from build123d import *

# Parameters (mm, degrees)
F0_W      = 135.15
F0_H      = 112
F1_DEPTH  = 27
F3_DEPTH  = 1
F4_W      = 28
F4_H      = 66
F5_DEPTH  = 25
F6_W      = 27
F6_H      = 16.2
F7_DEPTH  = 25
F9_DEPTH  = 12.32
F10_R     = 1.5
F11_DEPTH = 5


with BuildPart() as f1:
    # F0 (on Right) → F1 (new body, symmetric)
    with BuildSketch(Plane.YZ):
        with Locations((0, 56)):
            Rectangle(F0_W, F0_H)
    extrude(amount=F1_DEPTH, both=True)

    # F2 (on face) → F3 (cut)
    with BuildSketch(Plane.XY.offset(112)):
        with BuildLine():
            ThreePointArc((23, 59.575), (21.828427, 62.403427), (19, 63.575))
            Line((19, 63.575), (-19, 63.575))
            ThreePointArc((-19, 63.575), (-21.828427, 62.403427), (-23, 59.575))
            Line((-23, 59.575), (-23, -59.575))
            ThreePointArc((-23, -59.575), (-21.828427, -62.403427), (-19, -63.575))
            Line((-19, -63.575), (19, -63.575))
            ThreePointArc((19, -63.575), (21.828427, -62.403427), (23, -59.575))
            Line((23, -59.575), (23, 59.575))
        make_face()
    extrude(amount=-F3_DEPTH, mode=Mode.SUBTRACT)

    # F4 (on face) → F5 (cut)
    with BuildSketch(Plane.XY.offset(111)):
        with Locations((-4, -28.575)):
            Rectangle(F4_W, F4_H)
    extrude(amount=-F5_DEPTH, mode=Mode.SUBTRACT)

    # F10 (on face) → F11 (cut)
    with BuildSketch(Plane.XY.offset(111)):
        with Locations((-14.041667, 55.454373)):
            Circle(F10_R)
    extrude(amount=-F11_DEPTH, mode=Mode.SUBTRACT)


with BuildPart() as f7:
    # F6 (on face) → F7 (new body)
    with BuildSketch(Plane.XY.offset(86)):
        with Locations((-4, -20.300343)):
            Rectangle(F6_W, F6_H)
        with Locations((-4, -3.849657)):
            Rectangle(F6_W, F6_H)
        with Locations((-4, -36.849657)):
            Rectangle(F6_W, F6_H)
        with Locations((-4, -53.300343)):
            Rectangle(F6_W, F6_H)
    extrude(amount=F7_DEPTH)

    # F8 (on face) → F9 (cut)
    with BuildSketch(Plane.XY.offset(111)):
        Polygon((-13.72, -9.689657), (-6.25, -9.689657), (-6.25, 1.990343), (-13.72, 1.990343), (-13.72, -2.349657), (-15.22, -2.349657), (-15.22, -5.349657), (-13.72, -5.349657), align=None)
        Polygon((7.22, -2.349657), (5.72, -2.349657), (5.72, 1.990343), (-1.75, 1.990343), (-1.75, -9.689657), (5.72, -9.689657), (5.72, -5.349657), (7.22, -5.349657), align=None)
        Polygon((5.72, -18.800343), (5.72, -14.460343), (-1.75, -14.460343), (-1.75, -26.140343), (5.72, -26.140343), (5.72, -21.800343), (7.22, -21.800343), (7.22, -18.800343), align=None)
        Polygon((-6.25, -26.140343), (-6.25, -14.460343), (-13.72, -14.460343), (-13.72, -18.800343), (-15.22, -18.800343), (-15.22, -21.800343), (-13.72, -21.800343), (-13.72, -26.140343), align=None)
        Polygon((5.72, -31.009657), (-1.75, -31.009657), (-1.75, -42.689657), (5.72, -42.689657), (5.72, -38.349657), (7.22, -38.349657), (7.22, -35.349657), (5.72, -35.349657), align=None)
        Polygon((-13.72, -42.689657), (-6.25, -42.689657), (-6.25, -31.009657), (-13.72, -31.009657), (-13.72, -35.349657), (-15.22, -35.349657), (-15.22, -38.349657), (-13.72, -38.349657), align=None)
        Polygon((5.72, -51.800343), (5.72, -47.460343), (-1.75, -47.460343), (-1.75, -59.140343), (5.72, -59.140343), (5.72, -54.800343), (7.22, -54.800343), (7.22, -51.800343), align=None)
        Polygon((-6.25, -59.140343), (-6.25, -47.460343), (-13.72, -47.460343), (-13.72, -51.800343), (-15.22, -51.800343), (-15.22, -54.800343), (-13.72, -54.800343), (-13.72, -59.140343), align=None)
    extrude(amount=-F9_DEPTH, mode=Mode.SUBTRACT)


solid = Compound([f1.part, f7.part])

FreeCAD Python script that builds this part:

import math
import FreeCAD as App
import Part
import Sketcher
Q = App.Units.Quantity

doc = App.newDocument("Part")
body = doc.addObject("PartDesign::Body", "Body")

sketch1 = doc.addObject("Sketcher::SketchObject", "Sketch")
body.addObject(sketch1)
sketch1.AttachmentSupport = (doc.YZ_Plane, [""])
sketch1.MapMode = "FlatFace"
sketch1.addGeometry([
    Part.LineSegment(App.Vector(-68, 112, 0), App.Vector(-68, 0, 0)),
    Part.LineSegment(App.Vector(-68, 0, 0), App.Vector(68, 0, 0)),
    Part.LineSegment(App.Vector(68, 0, 0), App.Vector(68, 112, 0)),
    Part.LineSegment(App.Vector(68, 112, 0), App.Vector(-68, 112, 0)),
], False)
sketch1.addConstraint([
    Sketcher.Constraint("Coincident", 0, 2, 1, 1),
    Sketcher.Constraint("Coincident", 1, 2, 2, 1),
    Sketcher.Constraint("Coincident", 2, 2, 3, 1),
    Sketcher.Constraint("Coincident", 3, 2, 0, 1),
    Sketcher.Constraint("Vertical", 0),
    Sketcher.Constraint("Horizontal", 1),
    Sketcher.Constraint("Vertical", 2),
    Sketcher.Constraint("Horizontal", 3),
    Sketcher.Constraint("Symmetric", 0, 2, 1, 2, -1, 1),
    Sketcher.Constraint("DistanceY", 0, 2, 0, 1, Q("112 mm")),
    Sketcher.Constraint("DistanceX", 1, 1, 1, 2, Q("135.15 mm")),
])
pad1 = doc.addObject("PartDesign::Pad", "Pad")
body.addObject(pad1)
pad1.Profile = sketch1
pad1.Length = 54
pad1.Midplane = True

sketch2 = doc.addObject("Sketcher::SketchObject", "Sketch001")
body.addObject(sketch2)
sketch2.AttachmentSupport = (doc.XY_Plane, [""])
sketch2.MapMode = "FlatFace"
sketch2.AttachmentOffset = App.Placement(App.Vector(0, 0, 112), App.Rotation())
sketch2.addGeometry([
    Part.ArcOfCircle(Part.Circle(App.Vector(19, 59.6, 0), App.Vector(0, 0, 1), 4), math.radians(0), math.radians(90)),
    Part.LineSegment(App.Vector(19, 63.6, 0), App.Vector(-19, 63.6, 0)),
    Part.ArcOfCircle(Part.Circle(App.Vector(-19, 59.6, 0), App.Vector(0, 0, 1), 4), math.radians(90), math.radians(180)),
    Part.LineSegment(App.Vector(-23, 59.6, 0), App.Vector(-23, -59.6, 0)),
    Part.ArcOfCircle(Part.Circle(App.Vector(-19, -59.6, 0), App.Vector(0, 0, 1), 4), math.radians(-180), math.radians(-90)),
    Part.LineSegment(App.Vector(-19, -63.6, 0), App.Vector(19, -63.6, 0)),
    Part.ArcOfCircle(Part.Circle(App.Vector(19, -59.6, 0), App.Vector(0, 0, 1), 4), math.radians(-90), math.radians(0)),
    Part.LineSegment(App.Vector(23, -59.6, 0), App.Vector(23, 59.6, 0)),
], False)
sketch2.addConstraint([
    Sketcher.Constraint("Tangent", 0, 2, 1, 1),
    Sketcher.Constraint("Tangent", 1, 2, 2, 1),
    Sketcher.Constraint("Tangent", 2, 2, 3, 1),
    Sketcher.Constraint("Tangent", 3, 2, 4, 1),
    Sketcher.Constraint("Tangent", 4, 2, 5, 1),
    Sketcher.Constraint("Tangent", 5, 2, 6, 1),
    Sketcher.Constraint("Tangent", 6, 2, 7, 1),
    Sketcher.Constraint("Tangent", 7, 2, 0, 1),
    Sketcher.Constraint("Horizontal", 1),
    Sketcher.Constraint("Vertical", 3),
    Sketcher.Constraint("Horizontal", 5),
    Sketcher.Constraint("Vertical", 7),
    Sketcher.Constraint("Equal", 0, 2),
    Sketcher.Constraint("Equal", 2, 4),
    Sketcher.Constraint("Equal", 4, 6),
    Sketcher.Constraint("Symmetric", 0, 3, 4, 3, -1, 1),
    Sketcher.Constraint("Radius", 0, Q("4 mm")),
    Sketcher.Constraint("DistanceX", 1, 2, 1, 1, Q("38 mm")),
    Sketcher.Constraint("DistanceY", 3, 2, 3, 1, Q("119.15 mm")),
])
pocket1 = doc.addObject("PartDesign::Pocket", "Pocket")
body.addObject(pocket1)
pocket1.Profile = sketch2
pocket1.Length = 1

sketch3 = doc.addObject("Sketcher::SketchObject", "Sketch002")
body.addObject(sketch3)
sketch3.AttachmentSupport = (doc.XY_Plane, [""])
sketch3.MapMode = "FlatFace"
sketch3.AttachmentOffset = App.Placement(App.Vector(0, 0, 111), App.Rotation())
sketch3.addGeometry([
    Part.LineSegment(App.Vector(-18, 4, 0), App.Vector(-18, -62, 0)),
    Part.LineSegment(App.Vector(-18, -62, 0), App.Vector(10, -62, 0)),
    Part.LineSegment(App.Vector(10, -62, 0), App.Vector(10, 4, 0)),
    Part.LineSegment(App.Vector(10, 4, 0), App.Vector(-18, 4, 0)),
], False)
sketch3.addConstraint([
    Sketcher.Constraint("Coincident", 0, 2, 1, 1),
    Sketcher.Constraint("Coincident", 1, 2, 2, 1),
    Sketcher.Constraint("Coincident", 2, 2, 3, 1),
    Sketcher.Constraint("Coincident", 3, 2, 0, 1),
    Sketcher.Constraint("Vertical", 0),
    Sketcher.Constraint("Horizontal", 1),
    Sketcher.Constraint("Vertical", 2),
    Sketcher.Constraint("Horizontal", 3),
    Sketcher.Constraint("DistanceX", 1, 1, 1, 2, Q("28 mm")),
    Sketcher.Constraint("DistanceY", 0, 2, 0, 1, Q("66 mm")),
    Sketcher.Constraint("DistanceX", 0, 2, -1, 1, Q("18 mm")),
    Sketcher.Constraint("DistanceY", 0, 2, -1, 1, Q("61.575 mm")),
])
pocket2 = doc.addObject("PartDesign::Pocket", "Pocket001")
body.addObject(pocket2)
pocket2.Profile = sketch3
pocket2.Length = 25

sketch4 = doc.addObject("Sketcher::SketchObject", "Sketch003")
body.addObject(sketch4)
sketch4.AttachmentSupport = (doc.XY_Plane, [""])
sketch4.MapMode = "FlatFace"
sketch4.AttachmentOffset = App.Placement(App.Vector(0, 0, 111), App.Rotation())
sketch4.addGeometry(Part.Circle(App.Vector(-14, 55.5, 0), App.Vector(0, 0, 1), 1.5), False)
sketch4.addConstraint([
    Sketcher.Constraint("Diameter", 0, Q("3 mm")),
    Sketcher.Constraint("DistanceX", 0, 3, -1, 1, Q("14.041667 mm")),
    Sketcher.Constraint("DistanceY", -1, 1, 0, 3, Q("55.454373 mm")),
])
pocket3 = doc.addObject("PartDesign::Pocket", "Pocket002")
body.addObject(pocket3)
pocket3.Profile = sketch4
pocket3.Length = 5
body2 = doc.addObject("PartDesign::Body", "Body001")
body2.AllowCompound = True

sketch5 = doc.addObject("Sketcher::SketchObject", "Sketch004")
body2.addObject(sketch5)
sketch5.AttachmentSupport = (doc.getObject("XY_Plane001"), [""])
sketch5.MapMode = "FlatFace"
sketch5.AttachmentOffset = App.Placement(App.Vector(0, 0, 86), App.Rotation())
sketch5.addGeometry([
    Part.LineSegment(App.Vector(-18, -12, 0), App.Vector(-18, -28, 0)),
    Part.LineSegment(App.Vector(-18, -28, 0), App.Vector(10, -28, 0)),
    Part.LineSegment(App.Vector(10, -28, 0), App.Vector(10, -12, 0)),
    Part.LineSegment(App.Vector(10, -12, 0), App.Vector(-18, -12, 0)),
    Part.LineSegment(App.Vector(-18, 4, 0), App.Vector(-18, -12, 0)),
    Part.LineSegment(App.Vector(-18, -12, 0), App.Vector(10, -12, 0)),
    Part.LineSegment(App.Vector(10, -12, 0), App.Vector(10, 4, 0)),
    Part.LineSegment(App.Vector(10, 4, 0), App.Vector(-18, 4, 0)),
    Part.LineSegment(App.Vector(-18, -29, 0), App.Vector(-18, -45, 0)),
    Part.LineSegment(App.Vector(-18, -45, 0), App.Vector(10, -45, 0)),
    Part.LineSegment(App.Vector(10, -45, 0), App.Vector(10, -29, 0)),
    Part.LineSegment(App.Vector(10, -29, 0), App.Vector(-18, -29, 0)),
    Part.LineSegment(App.Vector(-18, -45, 0), App.Vector(-18, -61, 0)),
    Part.LineSegment(App.Vector(-18, -61, 0), App.Vector(10, -61, 0)),
    Part.LineSegment(App.Vector(10, -61, 0), App.Vector(10, -45, 0)),
    Part.LineSegment(App.Vector(10, -45, 0), App.Vector(-18, -45, 0)),
], False)
sketch5.addConstraint([
    Sketcher.Constraint("Coincident", 0, 2, 1, 1),
    Sketcher.Constraint("Coincident", 1, 2, 2, 1),
    Sketcher.Constraint("Coincident", 2, 2, 3, 1),
    Sketcher.Constraint("Coincident", 3, 2, 0, 1),
    Sketcher.Constraint("Coincident", 4, 2, 5, 1),
    Sketcher.Constraint("Coincident", 5, 2, 6, 1),
    Sketcher.Constraint("Coincident", 6, 2, 7, 1),
    Sketcher.Constraint("Coincident", 7, 2, 4, 1),
    Sketcher.Constraint("Coincident", 8, 2, 9, 1),
    Sketcher.Constraint("Coincident", 9, 2, 10, 1),
    Sketcher.Constraint("Coincident", 10, 2, 11, 1),
    Sketcher.Constraint("Coincident", 11, 2, 8, 1),
    Sketcher.Constraint("Coincident", 12, 2, 13, 1),
    Sketcher.Constraint("Coincident", 13, 2, 14, 1),
    Sketcher.Constraint("Coincident", 14, 2, 15, 1),
    Sketcher.Constraint("Coincident", 15, 2, 12, 1),
    Sketcher.Constraint("Vertical", 0),
    Sketcher.Constraint("Horizontal", 1),
    Sketcher.Constraint("Vertical", 2),
    Sketcher.Constraint("Horizontal", 3),
    Sketcher.Constraint("Vertical", 4),
    Sketcher.Constraint("Horizontal", 5),
    Sketcher.Constraint("Vertical", 6),
    Sketcher.Constraint("Horizontal", 7),
    Sketcher.Constraint("Vertical", 8),
    Sketcher.Constraint("Horizontal", 9),
    Sketcher.Constraint("Vertical", 10),
    Sketcher.Constraint("Horizontal", 11),
    Sketcher.Constraint("Vertical", 12),
    Sketcher.Constraint("Horizontal", 13),
    Sketcher.Constraint("Vertical", 14),
    Sketcher.Constraint("Horizontal", 15),
    Sketcher.Constraint("Vertical", 3, 2, 4, 2),
    Sketcher.Constraint("Vertical", 2, 2, 5, 2),
    Sketcher.Constraint("Vertical", 7, 2, 8, 2),
    Sketcher.Constraint("Vertical", 6, 2, 9, 2),
    Sketcher.Constraint("Vertical", 11, 2, 12, 2),
    Sketcher.Constraint("Vertical", 10, 2, 13, 2),
    Sketcher.Constraint("Equal", 2, 4),
    Sketcher.Constraint("Equal", 6, 8),
    Sketcher.Constraint("Equal", 10, 12),
    Sketcher.Constraint("DistanceX", 1, 1, 1, 2, Q("27 mm")),
    Sketcher.Constraint("DistanceY", 0, 2, 0, 1, Q("16.2 mm")),
    Sketcher.Constraint("DistanceY", 8, 2, 4, 2, Q("33 mm")),
    Sketcher.Constraint("DistanceY", 12, 2, 0, 2, Q("33 mm")),
    Sketcher.Constraint("DistanceX", 0, 2, -1, 1, Q("17.5 mm")),
    Sketcher.Constraint("DistanceY", 0, 2, -1, 1, Q("28.400343 mm")),
    Sketcher.Constraint("DistanceY", 4, 2, -1, 1, Q("11.949657 mm")),
])
pad2 = doc.addObject("PartDesign::Pad", "Pad001")
body2.addObject(pad2)
pad2.Profile = sketch5
pad2.Length = 25

sketch6 = doc.addObject("Sketcher::SketchObject", "Sketch005")
body2.addObject(sketch6)
sketch6.AttachmentSupport = (doc.getObject("XY_Plane001"), [""])
sketch6.MapMode = "FlatFace"
sketch6.AttachmentOffset = App.Placement(App.Vector(0, 0, 111), App.Rotation())
sketch6.addGeometry([
    Part.LineSegment(App.Vector(-13.7, -9.7, 0), App.Vector(-6.2, -9.7, 0)),
    Part.LineSegment(App.Vector(-6.2, -9.7, 0), App.Vector(-6.2, 2, 0)),
    Part.LineSegment(App.Vector(-6.2, 2, 0), App.Vector(-13.7, 2, 0)),
    Part.LineSegment(App.Vector(-13.7, 2, 0), App.Vector(-13.7, -2.3, 0)),
    Part.LineSegment(App.Vector(-13.7, -2.3, 0), App.Vector(-15.2, -2.3, 0)),
    Part.LineSegment(App.Vector(-15.2, -2.3, 0), App.Vector(-15.2, -5.3, 0)),
    Part.LineSegment(App.Vector(-15.2, -5.3, 0), App.Vector(-13.7, -5.3, 0)),
    Part.LineSegment(App.Vector(-13.7, -5.3, 0), App.Vector(-13.7, -9.7, 0)),
    Part.LineSegment(App.Vector(7.2, -2.3, 0), App.Vector(5.7, -2.3, 0)),
    Part.LineSegment(App.Vector(5.7, -2.3, 0), App.Vector(5.7, 2, 0)),
    Part.LineSegment(App.Vector(5.7, 2, 0), App.Vector(-1.8, 2, 0)),
    Part.LineSegment(App.Vector(-1.8, 2, 0), App.Vector(-1.8, -9.7, 0)),
    Part.LineSegment(App.Vector(-1.8, -9.7, 0), App.Vector(5.7, -9.7, 0)),
    Part.LineSegment(App.Vector(5.7, -9.7, 0), App.Vector(5.7, -5.3, 0)),
    Part.LineSegment(App.Vector(5.7, -5.3, 0), App.Vector(7.2, -5.3, 0)),
    Part.LineSegment(App.Vector(7.2, -5.3, 0), App.Vector(7.2, -2.3, 0)),
    Part.LineSegment(App.Vector(5.7, -18.8, 0), App.Vector(5.7, -14.5, 0)),
    Part.LineSegment(App.Vector(5.7, -14.5, 0), App.Vector(-1.8, -14.5, 0)),
    Part.LineSegment(App.Vector(-1.8, -14.5, 0), App.Vector(-1.8, -26.1, 0)),
    Part.LineSegment(App.Vector(-1.8, -26.1, 0), App.Vector(5.7, -26.1, 0)),
    Part.LineSegment(App.Vector(5.7, -26.1, 0), App.Vector(5.7, -21.8, 0)),
    Part.LineSegment(App.Vector(5.7, -21.8, 0), App.Vector(7.2, -21.8, 0)),
    Part.LineSegment(App.Vector(7.2, -21.8, 0), App.Vector(7.2, -18.8, 0)),
    Part.LineSegment(App.Vector(7.2, -18.8, 0), App.Vector(5.7, -18.8, 0)),
    Part.LineSegment(App.Vector(-6.2, -26.1, 0), App.Vector(-6.2, -14.5, 0)),
    Part.LineSegment(App.Vector(-6.2, -14.5, 0), App.Vector(-13.7, -14.5, 0)),
    Part.LineSegment(App.Vector(-13.7, -14.5, 0), App.Vector(-13.7, -18.8, 0)),
    Part.LineSegment(App.Vector(-13.7, -18.8, 0), App.Vector(-15.2, -18.8, 0)),
    Part.LineSegment(App.Vector(-15.2, -18.8, 0), App.Vector(-15.2, -21.8, 0)),
    Part.LineSegment(App.Vector(-15.2, -21.8, 0), App.Vector(-13.7, -21.8, 0)),
    Part.LineSegment(App.Vector(-13.7, -21.8, 0), App.Vector(-13.7, -26.1, 0)),
    Part.LineSegment(App.Vector(-13.7, -26.1, 0), App.Vector(-6.2, -26.1, 0)),
    Part.LineSegment(App.Vector(5.7, -31, 0), App.Vector(-1.8, -31, 0)),
    Part.LineSegment(App.Vector(-1.8, -31, 0), App.Vector(-1.8, -42.7, 0)),
    Part.LineSegment(App.Vector(-1.8, -42.7, 0), App.Vector(5.7, -42.7, 0)),
    Part.LineSegment(App.Vector(5.7, -42.7, 0), App.Vector(5.7, -38.3, 0)),
    Part.LineSegment(App.Vector(5.7, -38.3, 0), App.Vector(7.2, -38.3, 0)),
    Part.LineSegment(App.Vector(7.2, -38.3, 0), App.Vector(7.2, -35.3, 0)),
    Part.LineSegment(App.Vector(7.2, -35.3, 0), App.Vector(5.7, -35.3, 0)),
    Part.LineSegment(App.Vector(5.7, -35.3, 0), App.Vector(5.7, -31, 0)),
    Part.LineSegment(App.Vector(-13.7, -42.7, 0), App.Vector(-6.2, -42.7, 0)),
    Part.LineSegment(App.Vector(-6.2, -42.7, 0), App.Vector(-6.2, -31, 0)),
    Part.LineSegment(App.Vector(-6.2, -31, 0), App.Vector(-13.7, -31, 0)),
    Part.LineSegment(App.Vector(-13.7, -31, 0), App.Vector(-13.7, -35.3, 0)),
    Part.LineSegment(App.Vector(-13.7, -35.3, 0), App.Vector(-15.2, -35.3, 0)),
    Part.LineSegment(App.Vector(-15.2, -35.3, 0), App.Vector(-15.2, -38.3, 0)),
    Part.LineSegment(App.Vector(-15.2, -38.3, 0), App.Vector(-13.7, -38.3, 0)),
    Part.LineSegment(App.Vector(-13.7, -38.3, 0), App.Vector(-13.7, -42.7, 0)),
    Part.LineSegment(App.Vector(5.7, -51.8, 0), App.Vector(5.7, -47.5, 0)),
    Part.LineSegment(App.Vector(5.7, -47.5, 0), App.Vector(-1.8, -47.5, 0)),
    Part.LineSegment(App.Vector(-1.8, -47.5, 0), App.Vector(-1.8, -59.1, 0)),
    Part.LineSegment(App.Vector(-1.8, -59.1, 0), App.Vector(5.7, -59.1, 0)),
    Part.LineSegment(App.Vector(5.7, -59.1, 0), App.Vector(5.7, -54.8, 0)),
    Part.LineSegment(App.Vector(5.7, -54.8, 0), App.Vector(7.2, -54.8, 0)),
    Part.LineSegment(App.Vector(7.2, -54.8, 0), App.Vector(7.2, -51.8, 0)),
    Part.LineSegment(App.Vector(7.2, -51.8, 0), App.Vector(5.7, -51.8, 0)),
    Part.LineSegment(App.Vector(-6.2, -59.1, 0), App.Vector(-6.2, -47.5, 0)),
    Part.LineSegment(App.Vector(-6.2, -47.5, 0), App.Vector(-13.7, -47.5, 0)),
    Part.LineSegment(App.Vector(-13.7, -47.5, 0), App.Vector(-13.7, -51.8, 0)),
    Part.LineSegment(App.Vector(-13.7, -51.8, 0), App.Vector(-15.2, -51.8, 0)),
    Part.LineSegment(App.Vector(-15.2, -51.8, 0), App.Vector(-15.2, -54.8, 0)),
    Part.LineSegment(App.Vector(-15.2, -54.8, 0), App.Vector(-13.7, -54.8, 0)),
    Part.LineSegment(App.Vector(-13.7, -54.8, 0), App.Vector(-13.7, -59.1, 0)),
    Part.LineSegment(App.Vector(-13.7, -59.1, 0), App.Vector(-6.2, -59.1, 0)),
], False)
sketch6.addConstraint([
    Sketcher.Constraint("Coincident", 0, 2, 1, 1),
    Sketcher.Constraint("Coincident", 1, 2, 2, 1),
    Sketcher.Constraint("Coincident", 2, 2, 3, 1),
    Sketcher.Constraint("Coincident", 3, 2, 4, 1),
    Sketcher.Constraint("Coincident", 4, 2, 5, 1),
    Sketcher.Constraint("Coincident", 5, 2, 6, 1),
    Sketcher.Constraint("Coincident", 6, 2, 7, 1),
    Sketcher.Constraint("Coincident", 7, 2, 0, 1),
    Sketcher.Constraint("Coincident", 8, 2, 9, 1),
    Sketcher.Constraint("Coincident", 9, 2, 10, 1),
    Sketcher.Constraint("Coincident", 10, 2, 11, 1),
    Sketcher.Constraint("Coincident", 11, 2, 12, 1),
    Sketcher.Constraint("Coincident", 12, 2, 13, 1),
    Sketcher.Constraint("Coincident", 13, 2, 14, 1),
    Sketcher.Constraint("Coincident", 14, 2, 15, 1),
    Sketcher.Constraint("Coincident", 15, 2, 8, 1),
    Sketcher.Constraint("Coincident", 16, 2, 17, 1),
    Sketcher.Constraint("Coincident", 17, 2, 18, 1),
    Sketcher.Constraint("Coincident", 18, 2, 19, 1),
    Sketcher.Constraint("Coincident", 19, 2, 20, 1),
    Sketcher.Constraint("Coincident", 20, 2, 21, 1),
    Sketcher.Constraint("Coincident", 21, 2, 22, 1),
    Sketcher.Constraint("Coincident", 22, 2, 23, 1),
    Sketcher.Constraint("Coincident", 23, 2, 16, 1),
    Sketcher.Constraint("Coincident", 24, 2, 25, 1),
    Sketcher.Constraint("Coincident", 25, 2, 26, 1),
    Sketcher.Constraint("Coincident", 26, 2, 27, 1),
    Sketcher.Constraint("Coincident", 27, 2, 28, 1),
    Sketcher.Constraint("Coincident", 28, 2, 29, 1),
    Sketcher.Constraint("Coincident", 29, 2, 30, 1),
    Sketcher.Constraint("Coincident", 30, 2, 31, 1),
    Sketcher.Constraint("Coincident", 31, 2, 24, 1),
    Sketcher.Constraint("Coincident", 32, 2, 33, 1),
    Sketcher.Constraint("Coincident", 33, 2, 34, 1),
    Sketcher.Constraint("Coincident", 34, 2, 35, 1),
    Sketcher.Constraint("Coincident", 35, 2, 36, 1),
    Sketcher.Constraint("Coincident", 36, 2, 37, 1),
    Sketcher.Constraint("Coincident", 37, 2, 38, 1),
    Sketcher.Constraint("Coincident", 38, 2, 39, 1),
    Sketcher.Constraint("Coincident", 39, 2, 32, 1),
    Sketcher.Constraint("Coincident", 40, 2, 41, 1),
    Sketcher.Constraint("Coincident", 41, 2, 42, 1),
    Sketcher.Constraint("Coincident", 42, 2, 43, 1),
    Sketcher.Constraint("Coincident", 43, 2, 44, 1),
    Sketcher.Constraint("Coincident", 44, 2, 45, 1),
    Sketcher.Constraint("Coincident", 45, 2, 46, 1),
    Sketcher.Constraint("Coincident", 46, 2, 47, 1),
    Sketcher.Constraint("Coincident", 47, 2, 40, 1),
    Sketcher.Constraint("Coincident", 48, 2, 49, 1),
    Sketcher.Constraint("Coincident", 49, 2, 50, 1),
    Sketcher.Constraint("Coincident", 50, 2, 51, 1),
    Sketcher.Constraint("Coincident", 51, 2, 52, 1),
    Sketcher.Constraint("Coincident", 52, 2, 53, 1),
    Sketcher.Constraint("Coincident", 53, 2, 54, 1),
    Sketcher.Constraint("Coincident", 54, 2, 55, 1),
    Sketcher.Constraint("Coincident", 55, 2, 48, 1),
    Sketcher.Constraint("Coincident", 56, 2, 57, 1),
    Sketcher.Constraint("Coincident", 57, 2, 58, 1),
    Sketcher.Constraint("Coincident", 58, 2, 59, 1),
    Sketcher.Constraint("Coincident", 59, 2, 60, 1),
    Sketcher.Constraint("Coincident", 60, 2, 61, 1),
    Sketcher.Constraint("Coincident", 61, 2, 62, 1),
    Sketcher.Constraint("Coincident", 62, 2, 63, 1),
    Sketcher.Constraint("Coincident", 63, 2, 56, 1),
    Sketcher.Constraint("Horizontal", 0),
    Sketcher.Constraint("Vertical", 1),
    Sketcher.Constraint("Horizontal", 2),
    Sketcher.Constraint("Vertical", 3),
    Sketcher.Constraint("Horizontal", 4),
    Sketcher.Constraint("Vertical", 5),
    Sketcher.Constraint("Horizontal", 6),
    Sketcher.Constraint("Vertical", 7),
    Sketcher.Constraint("Horizontal", 8),
    Sketcher.Constraint("Vertical", 9),
    Sketcher.Constraint("Horizontal", 10),
    Sketcher.Constraint("Vertical", 11),
    Sketcher.Constraint("Horizontal", 12),
    Sketcher.Constraint("Vertical", 13),
    Sketcher.Constraint("Horizontal", 14),
    Sketcher.Constraint("Vertical", 15),
    Sketcher.Constraint("Vertical", 16),
    Sketcher.Constraint("Horizontal", 17),
    Sketcher.Constraint("Vertical", 18),
    Sketcher.Constraint("Horizontal", 19),
    Sketcher.Constraint("Vertical", 20),
    Sketcher.Constraint("Horizontal", 21),
    Sketcher.Constraint("Vertical", 22),
    Sketcher.Constraint("Horizontal", 23),
    Sketcher.Constraint("Vertical", 24),
    Sketcher.Constraint("Horizontal", 25),
    Sketcher.Constraint("Vertical", 26),
    Sketcher.Constraint("Horizontal", 27),
    Sketcher.Constraint("Vertical", 28),
    Sketcher.Constraint("Horizontal", 29),
    Sketcher.Constraint("Vertical", 30),
    Sketcher.Constraint("Horizontal", 31),
    Sketcher.Constraint("Horizontal", 32),
    Sketcher.Constraint("Vertical", 33),
    Sketcher.Constraint("Horizontal", 34),
    Sketcher.Constraint("Vertical", 35),
    Sketcher.Constraint("Horizontal", 36),
    Sketcher.Constraint("Vertical", 37),
    Sketcher.Constraint("Horizontal", 38),
    Sketcher.Constraint("Vertical", 39),
    Sketcher.Constraint("Horizontal", 40),
    Sketcher.Constraint("Vertical", 41),
    Sketcher.Constraint("Horizontal", 42),
    Sketcher.Constraint("Vertical", 43),
    Sketcher.Constraint("Horizontal", 44),
    Sketcher.Constraint("Vertical", 45),
    Sketcher.Constraint("Horizontal", 46),
    Sketcher.Constraint("Vertical", 47),
    Sketcher.Constraint("Vertical", 48),
    Sketcher.Constraint("Horizontal", 49),
    Sketcher.Constraint("Vertical", 50),
    Sketcher.Constraint("Horizontal", 51),
    Sketcher.Constraint("Vertical", 52),
    Sketcher.Constraint("Horizontal", 53),
    Sketcher.Constraint("Vertical", 54),
    Sketcher.Constraint("Horizontal", 55),
    Sketcher.Constraint("Vertical", 56),
    Sketcher.Constraint("Horizontal", 57),
    Sketcher.Constraint("Vertical", 58),
    Sketcher.Constraint("Horizontal", 59),
    Sketcher.Constraint("Vertical", 60),
    Sketcher.Constraint("Horizontal", 61),
    Sketcher.Constraint("Vertical", 62),
    Sketcher.Constraint("Horizontal", 63),
    Sketcher.Constraint("Horizontal", 4, 2, 8, 2),
    Sketcher.Constraint("Horizontal", 2, 2, 9, 2),
    Sketcher.Constraint("Horizontal", 7, 2, 11, 2),
    Sketcher.Constraint("Horizontal", 6, 2, 13, 2),
    Sketcher.Constraint("Horizontal", 17, 2, 24, 2),
    Sketcher.Constraint("Horizontal", 23, 2, 26, 2),
    Sketcher.Constraint("Horizontal", 21, 2, 28, 2),
    Sketcher.Constraint("Horizontal", 19, 2, 30, 2),
    Sketcher.Constraint("Horizontal", 34, 2, 40, 2),
    Sketcher.Constraint("Horizontal", 39, 2, 41, 2),
    Sketcher.Constraint("Horizontal", 38, 2, 43, 2),
    Sketcher.Constraint("Horizontal", 36, 2, 45, 2),
    Sketcher.Constraint("Horizontal", 49, 2, 56, 2),
    Sketcher.Constraint("Horizontal", 55, 2, 58, 2),
    Sketcher.Constraint("Horizontal", 53, 2, 60, 2),
    Sketcher.Constraint("Horizontal", 51, 2, 62, 2),
    Sketcher.Constraint("Vertical", 3, 2, 6, 2),
    Sketcher.Constraint("Vertical", 9, 2, 12, 2),
    Sketcher.Constraint("Vertical", 13, 2, 16, 2),
    Sketcher.Constraint("Vertical", 11, 2, 17, 2),
    Sketcher.Constraint("Vertical", 16, 2, 19, 2),
    Sketcher.Constraint("Vertical", 15, 2, 21, 2),
    Sketcher.Constraint("Vertical", 1, 2, 24, 2),
    Sketcher.Constraint("Vertical", 7, 2, 25, 2),
    Sketcher.Constraint("Vertical", 5, 2, 27, 2),
    Sketcher.Constraint("Vertical", 26, 2, 29, 2),
    Sketcher.Constraint("Vertical", 18, 2, 32, 2),
    Sketcher.Constraint("Vertical", 23, 2, 34, 2),
    Sketcher.Constraint("Vertical", 22, 2, 36, 2),
    Sketcher.Constraint("Vertical", 35, 2, 38, 2),
    Sketcher.Constraint("Vertical", 31, 2, 40, 2),
    Sketcher.Constraint("Vertical", 30, 2, 42, 2),
    Sketcher.Constraint("Vertical", 28, 2, 44, 2),
    Sketcher.Constraint("Vertical", 43, 2, 46, 2),
    Sketcher.Constraint("Vertical", 39, 2, 48, 2),
    Sketcher.Constraint("Vertical", 33, 2, 49, 2),
    Sketcher.Constraint("Vertical", 48, 2, 51, 2),
    Sketcher.Constraint("Vertical", 37, 2, 53, 2),
    Sketcher.Constraint("Vertical", 41, 2, 56, 2),
    Sketcher.Constraint("Vertical", 47, 2, 57, 2),
    Sketcher.Constraint("Vertical", 45, 2, 59, 2),
    Sketcher.Constraint("Vertical", 58, 2, 61, 2),
    Sketcher.Constraint("Equal", 6, 8),
    Sketcher.Constraint("Equal", 2, 10),
    Sketcher.Constraint("Equal", 3, 7),
    Sketcher.Constraint("Equal", 13, 16),
    Sketcher.Constraint("Equal", 11, 18),
    Sketcher.Constraint("Equal", 16, 20),
    Sketcher.Constraint("Equal", 24, 33),
    Sketcher.Constraint("Equal", 30, 35),
    Sketcher.Constraint("Equal", 28, 37),
    Sketcher.Constraint("Equal", 47, 48),
    Sketcher.Constraint("Equal", 41, 50),
    Sketcher.Constraint("Equal", 48, 52),
    Sketcher.Constraint("DistanceY", 5, 2, 5, 1, Q("3 mm")),
    Sketcher.Constraint("DistanceX", 4, 2, 4, 1, Q("1.5 mm")),
    Sketcher.Constraint("DistanceX", 0, 1, 0, 2, Q("7.47 mm")),
    Sketcher.Constraint("DistanceY", 1, 1, 1, 2, Q("11.68 mm")),
    Sketcher.Constraint("DistanceX", 0, 2, -1, 1, Q("6.25 mm")),
    Sketcher.Constraint("DistanceX", -1, 1, 8, 2, Q("5.72 mm")),
    Sketcher.Constraint("DistanceY", 0, 2, -1, 1, Q("9.689657 mm")),
    Sketcher.Constraint("DistanceY", 16, 2, -1, 1, Q("14.460343 mm")),
    Sketcher.Constraint("DistanceY", 32, 2, -1, 1, Q("31.009657 mm")),
    Sketcher.Constraint("DistanceY", 48, 2, -1, 1, Q("47.460343 mm")),
])
pocket4 = doc.addObject("PartDesign::Pocket", "Pocket003")
body2.addObject(pocket4)
pocket4.Profile = sketch6
pocket4.Length = 12.32

doc.recompute()
